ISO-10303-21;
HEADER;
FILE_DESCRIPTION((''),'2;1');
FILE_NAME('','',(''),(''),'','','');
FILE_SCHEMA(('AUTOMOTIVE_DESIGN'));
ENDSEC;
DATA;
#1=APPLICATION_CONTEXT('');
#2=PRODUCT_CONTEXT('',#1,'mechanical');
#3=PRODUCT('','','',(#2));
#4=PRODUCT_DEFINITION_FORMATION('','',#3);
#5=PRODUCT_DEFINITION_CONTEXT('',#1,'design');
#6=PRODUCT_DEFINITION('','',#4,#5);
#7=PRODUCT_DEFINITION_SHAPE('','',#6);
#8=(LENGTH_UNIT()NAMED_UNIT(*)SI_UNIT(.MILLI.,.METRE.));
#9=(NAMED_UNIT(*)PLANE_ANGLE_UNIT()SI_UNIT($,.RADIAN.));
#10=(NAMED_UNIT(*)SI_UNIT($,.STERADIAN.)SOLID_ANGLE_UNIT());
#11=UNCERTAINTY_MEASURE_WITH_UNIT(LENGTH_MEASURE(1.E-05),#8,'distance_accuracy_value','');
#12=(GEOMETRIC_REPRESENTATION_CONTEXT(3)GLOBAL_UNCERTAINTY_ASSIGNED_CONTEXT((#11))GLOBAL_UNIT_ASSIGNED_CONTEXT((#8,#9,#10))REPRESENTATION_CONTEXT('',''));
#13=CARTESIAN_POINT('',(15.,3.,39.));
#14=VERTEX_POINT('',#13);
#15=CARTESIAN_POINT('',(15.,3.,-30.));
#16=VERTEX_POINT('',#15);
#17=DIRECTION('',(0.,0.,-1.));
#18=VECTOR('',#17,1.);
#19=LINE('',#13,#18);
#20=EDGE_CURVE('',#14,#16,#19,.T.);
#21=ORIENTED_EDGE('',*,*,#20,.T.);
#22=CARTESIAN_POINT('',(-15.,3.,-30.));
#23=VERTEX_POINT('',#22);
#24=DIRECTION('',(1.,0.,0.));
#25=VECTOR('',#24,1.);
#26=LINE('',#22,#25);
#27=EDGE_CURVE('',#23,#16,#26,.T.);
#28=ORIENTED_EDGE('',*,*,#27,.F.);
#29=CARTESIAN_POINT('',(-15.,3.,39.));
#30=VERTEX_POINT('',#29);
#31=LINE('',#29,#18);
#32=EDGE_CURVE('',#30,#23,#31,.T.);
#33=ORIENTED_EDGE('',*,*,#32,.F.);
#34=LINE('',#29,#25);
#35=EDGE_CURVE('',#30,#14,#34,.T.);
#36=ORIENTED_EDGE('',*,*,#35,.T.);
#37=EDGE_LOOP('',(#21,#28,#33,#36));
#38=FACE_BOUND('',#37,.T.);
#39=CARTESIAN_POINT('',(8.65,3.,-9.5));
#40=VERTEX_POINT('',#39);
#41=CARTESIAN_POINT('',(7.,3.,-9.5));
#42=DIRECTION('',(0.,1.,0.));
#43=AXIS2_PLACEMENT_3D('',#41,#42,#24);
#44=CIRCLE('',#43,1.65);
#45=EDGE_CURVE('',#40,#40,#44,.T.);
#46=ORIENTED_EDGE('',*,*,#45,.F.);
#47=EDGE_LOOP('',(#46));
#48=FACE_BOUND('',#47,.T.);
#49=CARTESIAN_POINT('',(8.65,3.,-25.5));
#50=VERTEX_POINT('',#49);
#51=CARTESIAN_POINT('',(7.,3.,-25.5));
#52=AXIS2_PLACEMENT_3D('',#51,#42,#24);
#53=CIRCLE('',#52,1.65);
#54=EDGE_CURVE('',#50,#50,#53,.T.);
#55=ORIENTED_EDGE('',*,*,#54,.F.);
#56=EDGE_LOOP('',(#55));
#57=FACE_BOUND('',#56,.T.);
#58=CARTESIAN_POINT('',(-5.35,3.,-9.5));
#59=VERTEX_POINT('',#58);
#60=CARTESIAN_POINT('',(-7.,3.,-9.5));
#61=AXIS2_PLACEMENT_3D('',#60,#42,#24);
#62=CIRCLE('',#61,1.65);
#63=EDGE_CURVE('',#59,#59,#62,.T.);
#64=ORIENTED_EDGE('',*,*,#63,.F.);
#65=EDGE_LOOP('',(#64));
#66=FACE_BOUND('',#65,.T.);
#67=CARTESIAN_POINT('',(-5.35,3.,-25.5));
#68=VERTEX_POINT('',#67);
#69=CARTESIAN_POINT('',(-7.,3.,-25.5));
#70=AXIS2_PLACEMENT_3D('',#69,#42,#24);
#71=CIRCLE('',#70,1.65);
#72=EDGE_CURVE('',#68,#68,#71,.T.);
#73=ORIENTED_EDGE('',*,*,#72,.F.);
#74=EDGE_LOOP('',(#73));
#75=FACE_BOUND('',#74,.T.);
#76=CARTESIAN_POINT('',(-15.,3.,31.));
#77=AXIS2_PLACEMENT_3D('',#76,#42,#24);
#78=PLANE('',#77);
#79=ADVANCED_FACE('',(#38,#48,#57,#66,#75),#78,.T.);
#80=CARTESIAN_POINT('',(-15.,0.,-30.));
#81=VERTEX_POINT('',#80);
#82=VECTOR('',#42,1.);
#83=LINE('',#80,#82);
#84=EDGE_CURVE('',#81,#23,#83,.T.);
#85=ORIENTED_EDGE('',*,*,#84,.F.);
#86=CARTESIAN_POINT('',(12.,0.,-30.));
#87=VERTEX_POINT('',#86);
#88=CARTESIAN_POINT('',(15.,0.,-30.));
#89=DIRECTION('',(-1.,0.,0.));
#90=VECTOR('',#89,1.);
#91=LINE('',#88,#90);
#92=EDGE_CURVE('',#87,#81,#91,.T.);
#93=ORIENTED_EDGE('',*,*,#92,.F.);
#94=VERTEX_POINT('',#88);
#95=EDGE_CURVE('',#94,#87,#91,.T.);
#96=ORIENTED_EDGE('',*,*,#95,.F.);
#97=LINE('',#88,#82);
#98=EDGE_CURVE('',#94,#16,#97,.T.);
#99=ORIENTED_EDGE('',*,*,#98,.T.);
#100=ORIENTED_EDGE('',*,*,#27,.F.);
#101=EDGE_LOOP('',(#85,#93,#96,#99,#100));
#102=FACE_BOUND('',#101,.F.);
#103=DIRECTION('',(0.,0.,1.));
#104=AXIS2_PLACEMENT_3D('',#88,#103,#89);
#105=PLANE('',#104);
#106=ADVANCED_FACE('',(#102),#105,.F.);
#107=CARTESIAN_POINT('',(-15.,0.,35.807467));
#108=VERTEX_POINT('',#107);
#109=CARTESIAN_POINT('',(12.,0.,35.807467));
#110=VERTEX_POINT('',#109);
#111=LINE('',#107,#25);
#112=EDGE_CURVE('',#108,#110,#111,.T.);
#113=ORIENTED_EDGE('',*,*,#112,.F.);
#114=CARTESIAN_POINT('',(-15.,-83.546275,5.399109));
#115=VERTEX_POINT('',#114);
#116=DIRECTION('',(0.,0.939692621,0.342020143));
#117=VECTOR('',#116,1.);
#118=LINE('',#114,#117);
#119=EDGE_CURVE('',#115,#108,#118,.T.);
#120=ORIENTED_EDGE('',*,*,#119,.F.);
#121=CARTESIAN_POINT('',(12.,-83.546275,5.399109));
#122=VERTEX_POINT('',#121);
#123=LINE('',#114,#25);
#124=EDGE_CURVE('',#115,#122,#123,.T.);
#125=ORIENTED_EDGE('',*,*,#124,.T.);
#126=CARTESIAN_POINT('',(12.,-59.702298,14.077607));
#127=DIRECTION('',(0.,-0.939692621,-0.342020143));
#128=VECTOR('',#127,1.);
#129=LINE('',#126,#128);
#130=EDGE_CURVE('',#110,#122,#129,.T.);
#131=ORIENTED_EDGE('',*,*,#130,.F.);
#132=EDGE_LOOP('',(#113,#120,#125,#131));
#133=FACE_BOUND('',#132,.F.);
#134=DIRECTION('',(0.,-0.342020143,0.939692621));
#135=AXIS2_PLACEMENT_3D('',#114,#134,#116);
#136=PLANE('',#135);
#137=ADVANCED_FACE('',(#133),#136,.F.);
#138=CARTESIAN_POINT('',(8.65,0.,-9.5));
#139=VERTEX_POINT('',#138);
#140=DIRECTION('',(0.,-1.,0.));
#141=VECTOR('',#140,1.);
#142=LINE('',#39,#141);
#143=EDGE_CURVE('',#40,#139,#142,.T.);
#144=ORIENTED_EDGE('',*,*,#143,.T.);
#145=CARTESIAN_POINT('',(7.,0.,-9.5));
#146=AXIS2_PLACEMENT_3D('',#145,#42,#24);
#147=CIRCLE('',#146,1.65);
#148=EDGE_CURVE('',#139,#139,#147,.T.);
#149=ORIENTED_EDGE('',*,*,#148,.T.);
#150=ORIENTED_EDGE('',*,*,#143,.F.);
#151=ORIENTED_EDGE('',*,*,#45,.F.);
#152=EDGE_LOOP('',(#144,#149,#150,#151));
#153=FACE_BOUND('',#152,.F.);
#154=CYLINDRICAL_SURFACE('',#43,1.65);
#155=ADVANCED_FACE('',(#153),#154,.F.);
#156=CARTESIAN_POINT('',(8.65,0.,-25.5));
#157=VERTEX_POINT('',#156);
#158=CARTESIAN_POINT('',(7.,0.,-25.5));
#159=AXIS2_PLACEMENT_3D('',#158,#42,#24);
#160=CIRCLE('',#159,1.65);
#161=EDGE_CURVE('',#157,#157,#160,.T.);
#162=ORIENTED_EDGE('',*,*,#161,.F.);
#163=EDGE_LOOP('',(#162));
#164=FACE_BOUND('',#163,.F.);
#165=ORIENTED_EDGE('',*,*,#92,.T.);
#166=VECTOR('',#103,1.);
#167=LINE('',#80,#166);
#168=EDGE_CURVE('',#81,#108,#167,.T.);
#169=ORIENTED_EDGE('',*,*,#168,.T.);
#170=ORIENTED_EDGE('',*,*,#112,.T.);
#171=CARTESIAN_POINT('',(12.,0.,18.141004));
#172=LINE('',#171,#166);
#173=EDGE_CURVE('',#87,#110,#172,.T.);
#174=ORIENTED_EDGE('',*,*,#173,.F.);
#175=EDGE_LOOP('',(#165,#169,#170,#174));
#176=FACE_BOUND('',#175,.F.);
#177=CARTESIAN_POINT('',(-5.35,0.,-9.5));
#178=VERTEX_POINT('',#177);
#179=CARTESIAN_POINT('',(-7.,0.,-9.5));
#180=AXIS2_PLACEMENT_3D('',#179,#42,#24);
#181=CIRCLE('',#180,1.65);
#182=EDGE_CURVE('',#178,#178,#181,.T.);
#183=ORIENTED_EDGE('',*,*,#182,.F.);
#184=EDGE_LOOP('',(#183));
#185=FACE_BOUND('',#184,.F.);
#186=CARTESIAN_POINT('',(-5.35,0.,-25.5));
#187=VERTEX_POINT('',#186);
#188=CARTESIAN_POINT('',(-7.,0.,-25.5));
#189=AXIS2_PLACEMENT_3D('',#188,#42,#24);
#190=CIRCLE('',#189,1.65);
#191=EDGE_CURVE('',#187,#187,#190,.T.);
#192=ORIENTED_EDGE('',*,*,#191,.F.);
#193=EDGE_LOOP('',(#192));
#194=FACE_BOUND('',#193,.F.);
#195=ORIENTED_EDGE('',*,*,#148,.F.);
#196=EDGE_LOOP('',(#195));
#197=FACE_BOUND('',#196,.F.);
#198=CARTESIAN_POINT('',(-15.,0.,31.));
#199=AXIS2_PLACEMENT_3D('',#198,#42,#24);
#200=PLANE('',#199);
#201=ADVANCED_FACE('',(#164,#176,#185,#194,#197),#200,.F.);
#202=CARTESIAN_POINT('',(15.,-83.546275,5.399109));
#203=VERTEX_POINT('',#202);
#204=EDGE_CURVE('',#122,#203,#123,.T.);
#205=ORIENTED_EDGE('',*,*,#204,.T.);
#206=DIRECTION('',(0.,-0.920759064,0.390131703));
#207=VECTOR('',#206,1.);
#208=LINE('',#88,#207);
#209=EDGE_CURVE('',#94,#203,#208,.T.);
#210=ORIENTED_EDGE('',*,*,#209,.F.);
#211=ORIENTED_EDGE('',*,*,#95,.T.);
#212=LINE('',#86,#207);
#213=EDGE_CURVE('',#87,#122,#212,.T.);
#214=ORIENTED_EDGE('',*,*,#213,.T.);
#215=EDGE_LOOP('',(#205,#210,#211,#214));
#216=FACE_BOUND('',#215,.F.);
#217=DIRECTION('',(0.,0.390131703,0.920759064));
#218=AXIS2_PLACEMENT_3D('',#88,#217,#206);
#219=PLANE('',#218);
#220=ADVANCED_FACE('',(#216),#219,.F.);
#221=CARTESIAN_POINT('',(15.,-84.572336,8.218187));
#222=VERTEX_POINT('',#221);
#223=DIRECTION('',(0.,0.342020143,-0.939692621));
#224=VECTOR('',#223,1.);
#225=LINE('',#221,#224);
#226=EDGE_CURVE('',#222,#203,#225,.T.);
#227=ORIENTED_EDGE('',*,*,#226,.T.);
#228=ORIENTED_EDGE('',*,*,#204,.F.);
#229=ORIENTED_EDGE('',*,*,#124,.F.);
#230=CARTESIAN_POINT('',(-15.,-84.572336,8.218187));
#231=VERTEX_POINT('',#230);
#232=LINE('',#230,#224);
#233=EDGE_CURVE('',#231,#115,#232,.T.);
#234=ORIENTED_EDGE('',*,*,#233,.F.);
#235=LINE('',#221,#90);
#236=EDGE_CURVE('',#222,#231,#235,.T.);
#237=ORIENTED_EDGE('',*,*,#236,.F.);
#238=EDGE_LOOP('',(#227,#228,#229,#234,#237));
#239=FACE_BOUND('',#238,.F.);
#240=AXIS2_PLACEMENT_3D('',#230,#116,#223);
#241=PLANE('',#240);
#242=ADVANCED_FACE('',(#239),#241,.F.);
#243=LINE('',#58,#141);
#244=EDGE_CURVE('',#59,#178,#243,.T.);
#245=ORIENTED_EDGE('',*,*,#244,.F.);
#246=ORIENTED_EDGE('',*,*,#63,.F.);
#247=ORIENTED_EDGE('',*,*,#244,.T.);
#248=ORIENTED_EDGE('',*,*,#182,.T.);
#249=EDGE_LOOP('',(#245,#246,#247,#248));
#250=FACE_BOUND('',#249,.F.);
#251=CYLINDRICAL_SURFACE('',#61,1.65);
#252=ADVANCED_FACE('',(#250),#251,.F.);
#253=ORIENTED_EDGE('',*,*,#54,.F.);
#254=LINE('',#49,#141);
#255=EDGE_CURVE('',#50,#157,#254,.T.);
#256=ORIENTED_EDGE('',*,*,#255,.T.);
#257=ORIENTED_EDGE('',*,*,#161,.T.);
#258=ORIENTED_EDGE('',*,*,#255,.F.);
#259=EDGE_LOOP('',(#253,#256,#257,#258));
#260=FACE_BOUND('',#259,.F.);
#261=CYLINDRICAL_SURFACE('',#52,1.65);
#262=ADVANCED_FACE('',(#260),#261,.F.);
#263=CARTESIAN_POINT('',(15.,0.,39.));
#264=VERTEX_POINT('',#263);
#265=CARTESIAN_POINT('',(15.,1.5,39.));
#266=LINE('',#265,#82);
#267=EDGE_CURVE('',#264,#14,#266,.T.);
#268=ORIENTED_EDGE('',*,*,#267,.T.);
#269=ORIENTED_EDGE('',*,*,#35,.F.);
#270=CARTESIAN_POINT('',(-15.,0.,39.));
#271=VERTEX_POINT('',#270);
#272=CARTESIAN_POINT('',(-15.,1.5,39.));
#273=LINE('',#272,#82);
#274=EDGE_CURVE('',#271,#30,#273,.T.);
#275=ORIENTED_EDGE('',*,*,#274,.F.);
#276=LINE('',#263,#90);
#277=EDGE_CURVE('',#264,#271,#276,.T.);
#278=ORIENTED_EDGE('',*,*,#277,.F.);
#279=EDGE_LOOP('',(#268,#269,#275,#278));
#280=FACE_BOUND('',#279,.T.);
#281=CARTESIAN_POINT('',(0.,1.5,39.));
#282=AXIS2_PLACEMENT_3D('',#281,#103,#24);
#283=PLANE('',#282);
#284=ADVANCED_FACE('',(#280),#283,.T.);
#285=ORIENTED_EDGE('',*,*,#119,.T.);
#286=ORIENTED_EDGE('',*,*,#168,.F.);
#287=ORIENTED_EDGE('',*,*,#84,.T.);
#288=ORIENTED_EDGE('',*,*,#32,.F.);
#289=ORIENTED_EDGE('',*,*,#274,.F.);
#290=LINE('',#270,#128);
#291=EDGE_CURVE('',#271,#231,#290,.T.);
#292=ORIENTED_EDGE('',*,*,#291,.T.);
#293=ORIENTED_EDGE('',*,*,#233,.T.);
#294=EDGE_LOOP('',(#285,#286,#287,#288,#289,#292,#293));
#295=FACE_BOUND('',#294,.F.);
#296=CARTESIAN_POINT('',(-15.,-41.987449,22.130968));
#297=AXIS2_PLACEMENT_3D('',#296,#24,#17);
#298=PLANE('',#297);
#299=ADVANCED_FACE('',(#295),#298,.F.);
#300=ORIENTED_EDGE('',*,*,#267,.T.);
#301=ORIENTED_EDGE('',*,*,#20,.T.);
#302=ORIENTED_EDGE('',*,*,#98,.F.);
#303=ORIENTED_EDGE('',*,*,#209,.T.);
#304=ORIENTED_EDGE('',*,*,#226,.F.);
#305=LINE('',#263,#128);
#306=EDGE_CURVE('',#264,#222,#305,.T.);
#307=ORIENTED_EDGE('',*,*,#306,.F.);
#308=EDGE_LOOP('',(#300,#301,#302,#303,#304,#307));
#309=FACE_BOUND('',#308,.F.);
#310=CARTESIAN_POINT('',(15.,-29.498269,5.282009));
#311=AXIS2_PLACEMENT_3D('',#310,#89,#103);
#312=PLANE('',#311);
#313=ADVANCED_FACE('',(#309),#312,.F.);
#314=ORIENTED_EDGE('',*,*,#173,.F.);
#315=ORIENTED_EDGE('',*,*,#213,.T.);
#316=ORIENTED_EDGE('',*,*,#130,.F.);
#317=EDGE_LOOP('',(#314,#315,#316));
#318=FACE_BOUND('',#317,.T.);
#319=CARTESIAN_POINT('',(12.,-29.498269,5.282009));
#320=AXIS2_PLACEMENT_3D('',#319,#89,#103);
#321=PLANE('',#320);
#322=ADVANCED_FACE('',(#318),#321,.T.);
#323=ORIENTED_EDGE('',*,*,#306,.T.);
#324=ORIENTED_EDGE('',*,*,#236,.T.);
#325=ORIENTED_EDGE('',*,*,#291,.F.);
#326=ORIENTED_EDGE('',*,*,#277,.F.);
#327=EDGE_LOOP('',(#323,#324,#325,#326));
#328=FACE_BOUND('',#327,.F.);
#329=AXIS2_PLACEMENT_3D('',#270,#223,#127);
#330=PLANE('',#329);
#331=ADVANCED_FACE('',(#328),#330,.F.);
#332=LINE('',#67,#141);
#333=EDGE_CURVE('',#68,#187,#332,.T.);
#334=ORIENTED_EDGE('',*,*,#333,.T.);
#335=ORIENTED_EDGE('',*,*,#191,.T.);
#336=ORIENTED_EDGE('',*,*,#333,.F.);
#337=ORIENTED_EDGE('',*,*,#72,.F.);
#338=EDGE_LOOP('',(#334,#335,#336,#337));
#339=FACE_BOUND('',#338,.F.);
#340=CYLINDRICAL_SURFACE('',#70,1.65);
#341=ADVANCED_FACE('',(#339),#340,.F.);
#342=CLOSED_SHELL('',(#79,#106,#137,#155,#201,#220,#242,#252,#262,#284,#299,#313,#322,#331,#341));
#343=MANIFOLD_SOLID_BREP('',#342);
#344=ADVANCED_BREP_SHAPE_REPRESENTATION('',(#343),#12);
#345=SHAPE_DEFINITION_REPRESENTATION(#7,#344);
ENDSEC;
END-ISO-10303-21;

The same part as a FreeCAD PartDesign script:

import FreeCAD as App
import Part
import Sketcher
Q = App.Units.Quantity


def add_polygon(sketch, points):
    """Adds a closed chain of lines whose ends are joined by coincident constraints."""
    first, n = sketch.GeometryCount, len(points)
    for a, b in zip(points, points[1:] + points[:1]):
        sketch.addGeometry(Part.LineSegment(App.Vector(*a, 0), App.Vector(*b, 0)), False)
    for i in range(n):
        sketch.addConstraint(Sketcher.Constraint("Coincident", first + i, 2, first + (i + 1) % n, 1))

doc = App.newDocument("Part")
body = doc.addObject("PartDesign::Body", "Body")

# Sketch on XZ plane
sketch1 = body.newObject("Sketcher::SketchObject", "Sketch")
sketch1.AttachmentSupport = (doc.getObject("XZ_Plane"), [""])
sketch1.MapMode = "FlatFace"
add_polygon(sketch1, [(15, -30), (-15, -30), (-15, 31), (15, 31)])  # lines 0-3
sketch1.addConstraint(Sketcher.Constraint("Horizontal", 0))
sketch1.addConstraint(Sketcher.Constraint("Vertical", 1))
sketch1.addConstraint(Sketcher.Constraint("Horizontal", 2))
sketch1.addConstraint(Sketcher.Constraint("Vertical", 3))
sketch1.addConstraint(Sketcher.Constraint("DistanceX", 0, 2, 0, 1, Q("30 mm")))
sketch1.addConstraint(Sketcher.Constraint("DistanceY", 1, 1, 1, 2, Q("61 mm")))
sketch1.addConstraint(Sketcher.Constraint("DistanceX", 0, 2, -1, 1, Q("15 mm")))
sketch1.addConstraint(Sketcher.Constraint("DistanceY", 0, 2, -1, 1, Q("30 mm")))
pad1 = body.newObject("PartDesign::Pad", "Pad")
pad1.Profile = sketch1
pad1.Length = 3
pad1.Reversed = True

# Sketch on XZ plane
sketch2 = body.newObject("Sketcher::SketchObject", "Sketch001")
sketch2.AttachmentSupport = (doc.getObject("XZ_Plane"), [""])
sketch2.MapMode = "FlatFace"
sketch2.AttachmentOffset = App.Placement(App.Vector(0, 0, -3), App.Rotation())
sketch2.addGeometry(Part.Circle(App.Vector(-7, -25.5, 0), App.Vector(0, 0, 1), 1.65), False)
sketch2.addGeometry(Part.Circle(App.Vector(7, -25.5, 0), App.Vector(0, 0, 1), 1.65), False)
sketch2.addGeometry(Part.Circle(App.Vector(-7, -9.5, 0), App.Vector(0, 0, 1), 1.65), False)
sketch2.addGeometry(Part.Circle(App.Vector(7, -9.5, 0), App.Vector(0, 0, 1), 1.65), False)
sketch2.addConstraint(Sketcher.Constraint("Equal", 0, 1))
sketch2.addConstraint(Sketcher.Constraint("Equal", 1, 2))
sketch2.addConstraint(Sketcher.Constraint("Equal", 2, 3))
sketch2.addConstraint(Sketcher.Constraint("Symmetric", 0, 3, 1, 3, -2))
sketch2.addConstraint(Sketcher.Constraint("Symmetric", 2, 3, 3, 3, -2))
sketch2.addConstraint(Sketcher.Constraint("Vertical", 0, 3, 2, 3))
sketch2.addConstraint(Sketcher.Constraint("Diameter", 0, Q("3.3 mm")))
sketch2.addConstraint(Sketcher.Constraint("DistanceX", 0, 3, -1, 1, Q("7 mm")))
sketch2.addConstraint(Sketcher.Constraint("DistanceY", 0, 3, 2, 3, Q("16 mm")))
sketch2.addConstraint(Sketcher.Constraint("DistanceY", 0, 3, -1, 1, Q("25.5 mm")))
pocket1 = body.newObject("PartDesign::Pocket", "Pocket")
pocket1.Profile = sketch2
pocket1.Length = 4
pocket1.Reversed = True

# Sketch on XY plane
sketch3 = body.newObject("Sketcher::SketchObject", "Sketch002")
sketch3.AttachmentSupport = (doc.getObject("XY_Plane"), [""])
sketch3.MapMode = "FlatFace"
sketch3.AttachmentOffset = App.Placement(App.Vector(0, 0, 31), App.Rotation())
add_polygon(sketch3, [(-15, 3), (-15, 0), (15, 0), (15, 3)])  # lines 0-3
sketch3.addConstraint(Sketcher.Constraint("Vertical", 0))
sketch3.addConstraint(Sketcher.Constraint("Horizontal", 1))
sketch3.addConstraint(Sketcher.Constraint("Vertical", 2))
sketch3.addConstraint(Sketcher.Constraint("Horizontal", 3))
sketch3.addConstraint(Sketcher.Constraint("Symmetric", 0, 2, 1, 2, -1, 1))
sketch3.addConstraint(Sketcher.Constraint("DistanceX", 1, 1, 1, 2, Q("30 mm")))
sketch3.addConstraint(Sketcher.Constraint("DistanceY", 0, 2, 0, 1, Q("3 mm")))
pad2 = body.newObject("PartDesign::Pad", "Pad001")
pad2.Profile = sketch3
pad2.Length = 8

# Sketch on YZ plane
sketch4 = body.newObject("Sketcher::SketchObject", "Sketch003")
sketch4.AttachmentSupport = (doc.getObject("YZ_Plane"), [""])
sketch4.MapMode = "FlatFace"
sketch4.AttachmentOffset = App.Placement(App.Vector(0, 0, -15), App.Rotation())
add_polygon(sketch4, [(-84.572336, 8.218187), (0, 39), (0, 35.807467), (-83.546275, 5.399109)])  # lines 0-3
sketch4.addConstraint(Sketcher.Constraint("Vertical", 1))
sketch4.addConstraint(Sketcher.Constraint("PointOnObject", 0, 2, -2))
sketch4.addConstraint(Sketcher.Constraint("Parallel", 0, 2))
sketch4.addConstraint(Sketcher.Constraint("Perpendicular", 2, 3))
sketch4.addConstraint(Sketcher.Constraint("Angle", 0, Q("20 deg")))
sketch4.addConstraint(Sketcher.Constraint("Distance", 0, Q("90 mm")))
sketch4.addConstraint(Sketcher.Constraint("Distance", 3, Q("3 mm")))
sketch4.addConstraint(Sketcher.Constraint("DistanceY", -1, 1, 0, 2, Q("39 mm")))
pad3 = body.newObject("PartDesign::Pad", "Pad002")
pad3.Profile = sketch4
pad3.Length = 30

# Sketch on YZ plane
sketch5 = body.newObject("Sketcher::SketchObject", "Sketch004")
sketch5.AttachmentSupport = (doc.getObject("YZ_Plane"), [""])
sketch5.MapMode = "FlatFace"
sketch5.AttachmentOffset = App.Placement(App.Vector(0, 0, 15), App.Rotation())
add_polygon(sketch5, [(-83.546275, 5.399109), (0, -30), (3, -30), (3, 39), (0, 39), (-84.572336, 8.218187)])  # lines 0-5
sketch5.addConstraint(Sketcher.Constraint("Horizontal", 1))
sketch5.addConstraint(Sketcher.Constraint("Vertical", 2))
sketch5.addConstraint(Sketcher.Constraint("Horizontal", 3))
sketch5.addConstraint(Sketcher.Constraint("PointOnObject", 0, 2, -2))
sketch5.addConstraint(Sketcher.Constraint("PointOnObject", 3, 2, -2))
sketch5.addConstraint(Sketcher.Constraint("Perpendicular", 4, 5))
sketch5.addConstraint(Sketcher.Constraint("DistanceX", 1, 1, 1, 2, Q("3 mm")))
sketch5.addConstraint(Sketcher.Constraint("DistanceY", 2, 1, 2, 2, Q("69 mm")))
sketch5.addConstraint(Sketcher.Constraint("Angle", 4, Q("-160 deg")))
sketch5.addConstraint(Sketcher.Constraint("Distance", 4, Q("90 mm")))
sketch5.addConstraint(Sketcher.Constraint("Distance", 5, Q("3 mm")))
sketch5.addConstraint(Sketcher.Constraint("DistanceY", 0, 2, -1, 1, Q("30 mm")))
pad4 = body.newObject("PartDesign::Pad", "Pad003")
pad4.Profile = sketch5
pad4.Length = 3
pad4.Reversed = True

doc.recompute()
